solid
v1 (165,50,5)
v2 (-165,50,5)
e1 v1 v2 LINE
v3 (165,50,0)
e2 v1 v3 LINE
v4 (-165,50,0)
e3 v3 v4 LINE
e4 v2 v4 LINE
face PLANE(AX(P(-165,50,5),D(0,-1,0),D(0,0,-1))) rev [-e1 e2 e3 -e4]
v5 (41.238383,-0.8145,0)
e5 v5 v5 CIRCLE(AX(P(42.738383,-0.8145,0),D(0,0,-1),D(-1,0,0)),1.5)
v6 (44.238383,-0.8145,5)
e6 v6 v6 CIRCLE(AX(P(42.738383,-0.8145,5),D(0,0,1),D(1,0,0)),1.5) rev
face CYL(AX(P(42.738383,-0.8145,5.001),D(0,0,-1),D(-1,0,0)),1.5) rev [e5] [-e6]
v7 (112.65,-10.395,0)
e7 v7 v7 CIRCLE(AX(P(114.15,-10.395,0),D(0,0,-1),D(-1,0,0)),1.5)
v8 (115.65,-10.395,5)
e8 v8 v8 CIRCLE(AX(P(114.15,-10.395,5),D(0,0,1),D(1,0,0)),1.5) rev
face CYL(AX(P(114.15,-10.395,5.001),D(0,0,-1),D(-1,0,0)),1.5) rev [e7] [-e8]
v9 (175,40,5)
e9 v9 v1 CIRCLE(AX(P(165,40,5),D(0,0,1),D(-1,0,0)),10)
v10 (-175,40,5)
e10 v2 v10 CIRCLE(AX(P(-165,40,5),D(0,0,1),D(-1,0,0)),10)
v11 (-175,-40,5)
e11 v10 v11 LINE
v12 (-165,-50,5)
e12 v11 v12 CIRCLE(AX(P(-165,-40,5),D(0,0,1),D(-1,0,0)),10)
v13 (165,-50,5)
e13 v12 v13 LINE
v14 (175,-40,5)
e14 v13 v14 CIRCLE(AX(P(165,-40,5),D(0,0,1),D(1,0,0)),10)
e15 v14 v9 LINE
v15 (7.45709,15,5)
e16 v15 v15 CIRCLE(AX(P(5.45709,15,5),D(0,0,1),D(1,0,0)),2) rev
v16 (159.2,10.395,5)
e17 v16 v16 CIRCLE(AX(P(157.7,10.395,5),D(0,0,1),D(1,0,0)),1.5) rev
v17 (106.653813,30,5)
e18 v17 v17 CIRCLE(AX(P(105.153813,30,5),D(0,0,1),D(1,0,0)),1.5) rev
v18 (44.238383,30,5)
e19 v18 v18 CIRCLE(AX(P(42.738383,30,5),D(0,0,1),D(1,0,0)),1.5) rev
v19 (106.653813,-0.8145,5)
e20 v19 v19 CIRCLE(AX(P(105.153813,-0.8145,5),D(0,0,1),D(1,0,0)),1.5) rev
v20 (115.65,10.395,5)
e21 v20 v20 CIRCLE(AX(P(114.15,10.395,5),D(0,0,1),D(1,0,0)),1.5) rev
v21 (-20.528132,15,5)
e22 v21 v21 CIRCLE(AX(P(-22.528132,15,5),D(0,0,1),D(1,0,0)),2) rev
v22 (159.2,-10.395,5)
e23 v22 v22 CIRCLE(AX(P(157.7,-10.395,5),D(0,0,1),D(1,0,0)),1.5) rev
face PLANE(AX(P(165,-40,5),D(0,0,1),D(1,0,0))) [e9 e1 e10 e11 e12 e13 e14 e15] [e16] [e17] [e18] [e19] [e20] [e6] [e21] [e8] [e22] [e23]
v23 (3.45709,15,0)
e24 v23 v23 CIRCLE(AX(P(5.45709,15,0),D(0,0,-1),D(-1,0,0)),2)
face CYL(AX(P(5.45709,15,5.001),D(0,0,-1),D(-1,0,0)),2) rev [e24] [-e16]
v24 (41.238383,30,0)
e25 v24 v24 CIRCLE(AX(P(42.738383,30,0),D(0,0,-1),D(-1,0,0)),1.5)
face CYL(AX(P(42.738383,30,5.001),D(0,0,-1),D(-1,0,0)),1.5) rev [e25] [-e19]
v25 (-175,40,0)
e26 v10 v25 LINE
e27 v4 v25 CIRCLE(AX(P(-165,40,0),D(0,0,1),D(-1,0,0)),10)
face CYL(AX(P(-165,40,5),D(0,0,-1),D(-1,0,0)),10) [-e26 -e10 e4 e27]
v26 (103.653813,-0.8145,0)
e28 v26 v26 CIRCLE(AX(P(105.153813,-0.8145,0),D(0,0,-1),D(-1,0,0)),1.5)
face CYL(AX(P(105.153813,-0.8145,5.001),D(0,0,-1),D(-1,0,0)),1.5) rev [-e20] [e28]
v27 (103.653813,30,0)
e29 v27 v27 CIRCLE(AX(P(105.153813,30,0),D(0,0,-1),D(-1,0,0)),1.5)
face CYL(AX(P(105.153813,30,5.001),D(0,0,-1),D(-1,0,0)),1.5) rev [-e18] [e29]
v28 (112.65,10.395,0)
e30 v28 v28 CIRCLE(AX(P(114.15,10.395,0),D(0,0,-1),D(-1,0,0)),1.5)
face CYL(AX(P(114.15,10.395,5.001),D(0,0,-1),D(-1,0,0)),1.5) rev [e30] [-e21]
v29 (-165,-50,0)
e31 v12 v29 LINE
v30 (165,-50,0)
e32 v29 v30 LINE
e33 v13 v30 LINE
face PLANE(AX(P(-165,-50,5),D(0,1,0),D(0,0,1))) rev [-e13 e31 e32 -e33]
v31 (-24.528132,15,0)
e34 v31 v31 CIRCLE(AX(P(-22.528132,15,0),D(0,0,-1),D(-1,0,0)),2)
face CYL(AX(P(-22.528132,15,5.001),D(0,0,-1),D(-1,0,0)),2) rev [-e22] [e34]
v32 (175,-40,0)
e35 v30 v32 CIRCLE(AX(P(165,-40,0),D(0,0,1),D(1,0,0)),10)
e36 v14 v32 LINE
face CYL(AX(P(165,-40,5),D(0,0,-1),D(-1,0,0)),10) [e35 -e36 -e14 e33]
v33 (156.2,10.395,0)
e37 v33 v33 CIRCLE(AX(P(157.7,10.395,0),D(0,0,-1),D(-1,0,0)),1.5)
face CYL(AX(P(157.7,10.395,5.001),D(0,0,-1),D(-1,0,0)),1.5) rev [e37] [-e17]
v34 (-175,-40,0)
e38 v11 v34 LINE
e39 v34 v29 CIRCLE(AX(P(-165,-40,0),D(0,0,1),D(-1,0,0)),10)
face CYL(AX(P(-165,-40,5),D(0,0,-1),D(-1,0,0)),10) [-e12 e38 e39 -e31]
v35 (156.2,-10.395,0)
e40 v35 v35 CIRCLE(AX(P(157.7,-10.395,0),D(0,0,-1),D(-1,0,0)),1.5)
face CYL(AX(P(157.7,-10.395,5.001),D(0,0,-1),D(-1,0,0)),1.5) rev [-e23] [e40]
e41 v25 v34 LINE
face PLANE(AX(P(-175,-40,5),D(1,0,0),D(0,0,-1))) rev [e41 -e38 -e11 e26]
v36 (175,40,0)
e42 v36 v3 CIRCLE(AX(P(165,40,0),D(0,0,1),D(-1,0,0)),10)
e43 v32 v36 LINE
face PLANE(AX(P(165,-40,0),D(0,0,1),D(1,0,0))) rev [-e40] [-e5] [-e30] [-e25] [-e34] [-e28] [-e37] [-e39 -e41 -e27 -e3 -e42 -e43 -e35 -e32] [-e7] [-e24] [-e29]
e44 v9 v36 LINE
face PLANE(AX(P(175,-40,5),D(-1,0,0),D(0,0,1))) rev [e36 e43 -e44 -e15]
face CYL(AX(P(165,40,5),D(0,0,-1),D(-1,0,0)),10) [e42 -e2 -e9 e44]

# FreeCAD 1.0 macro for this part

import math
import FreeCAD as App
import Part
import Sketcher

V = App.Vector
Q = App.Units.Quantity

doc = App.newDocument("Part")
body = doc.addObject("PartDesign::Body", "Body")

sketch1 = body.newObject("Sketcher::SketchObject", "Sketch")
sketch1.AttachmentSupport = (doc.getObject("XY_Plane"), [""])
sketch1.MapMode = "FlatFace"
sketch1.addGeometry(Part.LineSegment(V(-165, -50, 0), V(165, -50, 0)), False)
sketch1.addGeometry(Part.ArcOfCircle(Part.Circle(V(165, -40, 0), V(0, 0, 1), 10), math.radians(-90), math.radians(0)), False)
sketch1.addGeometry(Part.LineSegment(V(175, -40, 0), V(175, 40, 0)), False)
sketch1.addGeometry(Part.ArcOfCircle(Part.Circle(V(165, 40, 0), V(0, 0, 1), 10), math.radians(0), math.radians(90)), False)
sketch1.addGeometry(Part.LineSegment(V(165, 50, 0), V(-165, 50, 0)), False)
sketch1.addGeometry(Part.ArcOfCircle(Part.Circle(V(-165, 40, 0), V(0, 0, 1), 10), math.radians(90), math.radians(180)), False)
sketch1.addGeometry(Part.LineSegment(V(-175, 40, 0), V(-175, -40, 0)), False)
sketch1.addGeometry(Part.ArcOfCircle(Part.Circle(V(-165, -40, 0), V(0, 0, 1), 10), math.radians(180), math.radians(270)), False)
sketch1.addConstraint(Sketcher.Constraint("Tangent", 0, 2, 1, 1))
sketch1.addConstraint(Sketcher.Constraint("Tangent", 1, 2, 2, 1))
sketch1.addConstraint(Sketcher.Constraint("Tangent", 2, 2, 3, 1))
sketch1.addConstraint(Sketcher.Constraint("Tangent", 3, 2, 4, 1))
sketch1.addConstraint(Sketcher.Constraint("Tangent", 4, 2, 5, 1))
sketch1.addConstraint(Sketcher.Constraint("Tangent", 5, 2, 6, 1))
sketch1.addConstraint(Sketcher.Constraint("Tangent", 6, 2, 7, 1))
sketch1.addConstraint(Sketcher.Constraint("Tangent", 7, 2, 0, 1))
sketch1.addConstraint(Sketcher.Constraint("Horizontal", 0))
sketch1.addConstraint(Sketcher.Constraint("Vertical", 2))
sketch1.addConstraint(Sketcher.Constraint("Horizontal", 4))
sketch1.addConstraint(Sketcher.Constraint("Vertical", 6))
sketch1.addConstraint(Sketcher.Constraint("Equal", 1, 3))
sketch1.addConstraint(Sketcher.Constraint("Equal", 3, 5))
sketch1.addConstraint(Sketcher.Constraint("Equal", 5, 7))
sketch1.addConstraint(Sketcher.Constraint("Symmetric", 1, 3, 5, 3, -1, 1))
sketch1.addConstraint(Sketcher.Constraint("Radius", 1, Q("10 mm")))
sketch1.addConstraint(Sketcher.Constraint("DistanceX", 0, 1, 0, 2, Q("330 mm")))
sketch1.addConstraint(Sketcher.Constraint("DistanceY", 2, 1, 2, 2, Q("80 mm")))
pad1 = body.newObject("PartDesign::Pad", "Pad")
pad1.Profile = sketch1
pad1.Length = 5

sketch2 = body.newObject("Sketcher::SketchObject", "Sketch001")
sketch2.AttachmentSupport = (doc.getObject("XY_Plane"), [""])
sketch2.MapMode = "FlatFace"
sketch2.addGeometry(Part.Circle(V(5.5, 15, 0), V(0, 0, 1), 2), False)
sketch2.addConstraint(Sketcher.Constraint("Diameter", 0, Q("4 mm")))
sketch2.addConstraint(Sketcher.Constraint("DistanceY", -1, 1, 0, 3, Q("15 mm")))
sketch2.addConstraint(Sketcher.Constraint("DistanceX", -1, 1, 0, 3, Q("5.45709 mm")))
pocket1 = body.newObject("PartDesign::Pocket", "Pocket")
pocket1.Profile = sketch2
pocket1.Type = "UpToFirst"
pocket1.Reversed = True

sketch3 = body.newObject("Sketcher::SketchObject", "Sketch002")
sketch3.AttachmentSupport = (doc.getObject("XY_Plane"), [""])
sketch3.MapMode = "FlatFace"
sketch3.addGeometry(Part.Circle(V(-22.5, 15, 0), V(0, 0, 1), 2), False)
sketch3.addConstraint(Sketcher.Constraint("Diameter", 0, Q("4 mm")))
sketch3.addConstraint(Sketcher.Constraint("DistanceY", -1, 1, 0, 3, Q("15 mm")))
sketch3.addConstraint(Sketcher.Constraint("DistanceX", 0, 3, -1, 1, Q("22.528132 mm")))
pocket2 = body.newObject("PartDesign::Pocket", "Pocket001")
pocket2.Profile = sketch3
pocket2.Type = "UpToFirst"
pocket2.Reversed = True

sketch4 = body.newObject("Sketcher::SketchObject", "Sketch003")
sketch4.AttachmentSupport = (doc.getObject("XY_Plane"), [""])
sketch4.MapMode = "FlatFace"
sketch4.addGeometry(Part.Circle(V(105.2, 30, 0), V(0, 0, 1), 1.5), False)
sketch4.addConstraint(Sketcher.Constraint("Diameter", 0, Q("3 mm")))
sketch4.addConstraint(Sketcher.Constraint("DistanceY", -1, 1, 0, 3, Q("30 mm")))
sketch4.addConstraint(Sketcher.Constraint("DistanceX", -1, 1, 0, 3, Q("105.153813 mm")))
pocket3 = body.newObject("PartDesign::Pocket", "Pocket002")
pocket3.Profile = sketch4
pocket3.Type = "UpToFirst"
pocket3.Reversed = True

sketch5 = body.newObject("Sketcher::SketchObject", "Sketch004")
sketch5.AttachmentSupport = (doc.getObject("XY_Plane"), [""])
sketch5.MapMode = "FlatFace"
sketch5.addGeometry(Part.Circle(V(42.7, 30, 0), V(0, 0, 1), 1.5), False)
sketch5.addConstraint(Sketcher.Constraint("Diameter", 0, Q("3 mm")))
sketch5.addConstraint(Sketcher.Constraint("DistanceY", -1, 1, 0, 3, Q("30 mm")))
sketch5.addConstraint(Sketcher.Constraint("DistanceX", -1, 1, 0, 3, Q("42.738383 mm")))
pocket4 = body.newObject("PartDesign::Pocket", "Pocket003")
pocket4.Profile = sketch5
pocket4.Type = "UpToFirst"
pocket4.Reversed = True

sketch6 = body.newObject("Sketcher::SketchObject", "Sketch005")
sketch6.AttachmentSupport = (doc.getObject("XY_Plane"), [""])
sketch6.MapMode = "FlatFace"
sketch6.addGeometry(Part.Circle(V(42.7, -0.8, 0), V(0, 0, 1), 1.5), False)
sketch6.addConstraint(Sketcher.Constraint("Diameter", 0, Q("3 mm")))
sketch6.addConstraint(Sketcher.Constraint("DistanceY", 0, 3, -1, 1, Q("0.8145 mm")))
sketch6.addConstraint(Sketcher.Constraint("DistanceX", -1, 1, 0, 3, Q("42.738383 mm")))
pocket5 = body.newObject("PartDesign::Pocket", "Pocket004")
pocket5.Profile = sketch6
pocket5.Type = "UpToFirst"
pocket5.Reversed = True

sketch7 = body.newObject("Sketcher::SketchObject", "Sketch006")
sketch7.AttachmentSupport = (doc.getObject("XY_Plane"), [""])
sketch7.MapMode = "FlatFace"
sketch7.addGeometry(Part.Circle(V(105.2, -0.8, 0), V(0, 0, 1), 1.5), False)
sketch7.addConstraint(Sketcher.Constraint("Diameter", 0, Q("3 mm")))
sketch7.addConstraint(Sketcher.Constraint("DistanceY", 0, 3, -1, 1, Q("0.8145 mm")))
sketch7.addConstraint(Sketcher.Constraint("DistanceX", -1, 1, 0, 3, Q("105.153813 mm")))
pocket6 = body.newObject("PartDesign::Pocket", "Pocket005")
pocket6.Profile = sketch7
pocket6.Type = "UpToFirst"
pocket6.Reversed = True

sketch8 = body.newObject("Sketcher::SketchObject", "Sketch007")
sketch8.AttachmentSupport = (doc.getObject("XY_Plane"), [""])
sketch8.MapMode = "FlatFace"
sketch8.addGeometry(Part.Circle(V(114.2, -10.4, 0), V(0, 0, 1), 1.5), False)
sketch8.addConstraint(Sketcher.Constraint("Diameter", 0, Q("3 mm")))
sketch8.addConstraint(Sketcher.Constraint("DistanceX", -1, 1, 0, 3, Q("114.15 mm")))
sketch8.addConstraint(Sketcher.Constraint("DistanceY", 0, 3, -1, 1, Q("10.395 mm")))
pocket7 = body.newObject("PartDesign::Pocket", "Pocket006")
pocket7.Profile = sketch8
pocket7.Type = "UpToFirst"
pocket7.Reversed = True

sketch9 = body.newObject("Sketcher::SketchObject", "Sketch008")
sketch9.AttachmentSupport = (doc.getObject("XY_Plane"), [""])
sketch9.MapMode = "FlatFace"
sketch9.addGeometry(Part.Circle(V(114.2, 10.4, 0), V(0, 0, 1), 1.5), False)
sketch9.addConstraint(Sketcher.Constraint("Diameter", 0, Q("3 mm")))
sketch9.addConstraint(Sketcher.Constraint("DistanceX", -1, 1, 0, 3, Q("114.15 mm")))
sketch9.addConstraint(Sketcher.Constraint("DistanceY", -1, 1, 0, 3, Q("10.395 mm")))
pocket8 = body.newObject("PartDesign::Pocket", "Pocket007")
pocket8.Profile = sketch9
pocket8.Type = "UpToFirst"
pocket8.Reversed = True

sketch10 = body.newObject("Sketcher::SketchObject", "Sketch009")
sketch10.AttachmentSupport = (doc.getObject("XY_Plane"), [""])
sketch10.MapMode = "FlatFace"
sketch10.addGeometry(Part.Circle(V(157.7, -10.4, 0), V(0, 0, 1), 1.5), False)
sketch10.addConstraint(Sketcher.Constraint("Diameter", 0, Q("3 mm")))
sketch10.addConstraint(Sketcher.Constraint("DistanceX", -1, 1, 0, 3, Q("157.7 mm")))
sketch10.addConstraint(Sketcher.Constraint("DistanceY", 0, 3, -1, 1, Q("10.395 mm")))
pocket9 = body.newObject("PartDesign::Pocket", "Pocket008")
pocket9.Profile = sketch10
pocket9.Type = "UpToFirst"
pocket9.Reversed = True

sketch11 = body.newObject("Sketcher::SketchObject", "Sketch010")
sketch11.AttachmentSupport = (doc.getObject("XY_Plane"), [""])
sketch11.MapMode = "FlatFace"
sketch11.addGeometry(Part.Circle(V(157.7, 10.4, 0), V(0, 0, 1), 1.5), False)
sketch11.addConstraint(Sketcher.Constraint("Diameter", 0, Q("3 mm")))
sketch11.addConstraint(Sketcher.Constraint("DistanceX", -1, 1, 0, 3, Q("157.7 mm")))
sketch11.addConstraint(Sketcher.Constraint("DistanceY", -1, 1, 0, 3, Q("10.395 mm")))
pocket10 = body.newObject("PartDesign::Pocket", "Pocket009")
pocket10.Profile = sketch11
pocket10.Type = "UpToFirst"
pocket10.Reversed = True

doc.recompute()
